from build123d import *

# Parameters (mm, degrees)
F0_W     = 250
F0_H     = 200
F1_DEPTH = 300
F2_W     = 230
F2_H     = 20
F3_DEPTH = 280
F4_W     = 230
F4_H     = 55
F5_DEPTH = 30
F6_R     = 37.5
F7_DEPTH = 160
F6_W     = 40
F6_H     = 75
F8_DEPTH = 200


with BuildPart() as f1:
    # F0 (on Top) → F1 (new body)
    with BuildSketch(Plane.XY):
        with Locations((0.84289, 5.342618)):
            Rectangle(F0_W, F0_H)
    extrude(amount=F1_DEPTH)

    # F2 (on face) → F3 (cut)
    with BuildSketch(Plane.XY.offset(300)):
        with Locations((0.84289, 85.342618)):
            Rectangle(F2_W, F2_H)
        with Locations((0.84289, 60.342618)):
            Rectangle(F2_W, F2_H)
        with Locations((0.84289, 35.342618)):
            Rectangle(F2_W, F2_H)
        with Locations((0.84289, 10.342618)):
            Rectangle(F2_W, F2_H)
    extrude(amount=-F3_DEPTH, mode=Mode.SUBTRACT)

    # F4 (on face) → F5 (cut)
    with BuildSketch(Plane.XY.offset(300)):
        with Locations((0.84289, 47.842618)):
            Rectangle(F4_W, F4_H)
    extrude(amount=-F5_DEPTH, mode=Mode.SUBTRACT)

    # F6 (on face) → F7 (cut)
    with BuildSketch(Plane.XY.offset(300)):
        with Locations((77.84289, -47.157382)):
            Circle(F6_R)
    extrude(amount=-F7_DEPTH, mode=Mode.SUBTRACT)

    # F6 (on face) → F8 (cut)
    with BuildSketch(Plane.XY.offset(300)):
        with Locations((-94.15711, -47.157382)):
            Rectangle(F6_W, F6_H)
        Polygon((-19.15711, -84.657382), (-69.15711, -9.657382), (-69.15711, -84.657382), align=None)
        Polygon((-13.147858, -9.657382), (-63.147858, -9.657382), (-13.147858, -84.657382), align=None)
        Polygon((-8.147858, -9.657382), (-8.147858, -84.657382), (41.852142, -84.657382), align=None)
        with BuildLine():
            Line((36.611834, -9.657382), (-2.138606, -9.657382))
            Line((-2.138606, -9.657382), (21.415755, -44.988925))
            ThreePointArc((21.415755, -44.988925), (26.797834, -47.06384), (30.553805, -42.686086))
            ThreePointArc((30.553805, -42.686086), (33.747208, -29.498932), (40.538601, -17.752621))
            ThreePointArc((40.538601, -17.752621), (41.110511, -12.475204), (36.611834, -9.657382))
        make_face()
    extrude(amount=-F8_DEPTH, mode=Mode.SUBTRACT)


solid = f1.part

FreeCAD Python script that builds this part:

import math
import FreeCAD as App
import Part
import Sketcher
from FreeCAD import Vector
Q = App.Units.Quantity

doc = App.newDocument("Part")
body = doc.addObject("PartDesign::Body", "Body")

# Sketch on XY plane
sketch1 = body.newObject("Sketcher::SketchObject", "Sketch")
sketch1.AttachmentSupport = (doc.getObject("XY_Plane"), [""])
sketch1.MapMode = "FlatFace"
sketch1.addGeometry(Part.LineSegment(Vector(-124, 105, 0), Vector(-124, -95, 0)), False)
sketch1.addGeometry(Part.LineSegment(Vector(-124, -95, 0), Vector(126, -95, 0)), False)
sketch1.addGeometry(Part.LineSegment(Vector(126, -95, 0), Vector(126, 105, 0)), False)
sketch1.addGeometry(Part.LineSegment(Vector(126, 105, 0), Vector(-124, 105, 0)), False)
sketch1.addConstraint(Sketcher.Constraint("Coincident", 0, 2, 1, 1))
sketch1.addConstraint(Sketcher.Constraint("Coincident", 1, 2, 2, 1))
sketch1.addConstraint(Sketcher.Constraint("Coincident", 2, 2, 3, 1))
sketch1.addConstraint(Sketcher.Constraint("Coincident", 3, 2, 0, 1))
sketch1.addConstraint(Sketcher.Constraint("Vertical", 0))
sketch1.addConstraint(Sketcher.Constraint("Horizontal", 1))
sketch1.addConstraint(Sketcher.Constraint("Vertical", 2))
sketch1.addConstraint(Sketcher.Constraint("Horizontal", 3))
sketch1.addConstraint(Sketcher.Constraint("DistanceX", 1, 1, 1, 2, Q("250 mm")))
sketch1.addConstraint(Sketcher.Constraint("DistanceY", 0, 2, 0, 1, Q("200 mm")))
sketch1.addConstraint(Sketcher.Constraint("DistanceX", 0, 2, -1, 1, Q("124.15711 mm")))
sketch1.addConstraint(Sketcher.Constraint("DistanceY", 0, 2, -1, 1, Q("94.657382 mm")))
pad1 = body.newObject("PartDesign::Pad", "Pad")
pad1.Profile = sketch1
pad1.Length = 300

# Sketch on XY plane
sketch2 = body.newObject("Sketcher::SketchObject", "Sketch001")
sketch2.AttachmentSupport = (doc.getObject("XY_Plane"), [""])
sketch2.MapMode = "FlatFace"
sketch2.AttachmentOffset = App.Placement(Vector(0, 0, 300), App.Rotation())
sketch2.addGeometry(Part.LineSegment(Vector(-114, 95, 0), Vector(-114, 75, 0)), False)
sketch2.addGeometry(Part.LineSegment(Vector(-114, 75, 0), Vector(116, 75, 0)), False)
sketch2.addGeometry(Part.LineSegment(Vector(116, 75, 0), Vector(116, 95, 0)), False)
sketch2.addGeometry(Part.LineSegment(Vector(116, 95, 0), Vector(-114, 95, 0)), False)
sketch2.addGeometry(Part.LineSegment(Vector(-114, 70, 0), Vector(-114, 50, 0)), False)
sketch2.addGeometry(Part.LineSegment(Vector(-114, 50, 0), Vector(116, 50, 0)), False)
sketch2.addGeometry(Part.LineSegment(Vector(116, 50, 0), Vector(116, 70, 0)), False)
sketch2.addGeometry(Part.LineSegment(Vector(116, 70, 0), Vector(-114, 70, 0)), False)
sketch2.addGeometry(Part.LineSegment(Vector(-114, 45, 0), Vector(-114, 25, 0)), False)
sketch2.addGeometry(Part.LineSegment(Vector(-114, 25, 0), Vector(116, 25, 0)), False)
sketch2.addGeometry(Part.LineSegment(Vector(116, 25, 0), Vector(116, 45, 0)), False)
sketch2.addGeometry(Part.LineSegment(Vector(116, 45, 0), Vector(-114, 45, 0)), False)
sketch2.addGeometry(Part.LineSegment(Vector(-114, 20, 0), Vector(-114, 0, 0)), False)
sketch2.addGeometry(Part.LineSegment(Vector(-114, 0, 0), Vector(116, 0, 0)), False)
sketch2.addGeometry(Part.LineSegment(Vector(116, 0, 0), Vector(116, 20, 0)), False)
sketch2.addGeometry(Part.LineSegment(Vector(116, 20, 0), Vector(-114, 20, 0)), False)
sketch2.addConstraint(Sketcher.Constraint("Coincident", 0, 2, 1, 1))
sketch2.addConstraint(Sketcher.Constraint("Coincident", 1, 2, 2, 1))
sketch2.addConstraint(Sketcher.Constraint("Coincident", 2, 2, 3, 1))
sketch2.addConstraint(Sketcher.Constraint("Coincident", 3, 2, 0, 1))
sketch2.addConstraint(Sketcher.Constraint("Coincident", 4, 2, 5, 1))
sketch2.addConstraint(Sketcher.Constraint("Coincident", 5, 2, 6, 1))
sketch2.addConstraint(Sketcher.Constraint("Coincident", 6, 2, 7, 1))
sketch2.addConstraint(Sketcher.Constraint("Coincident", 7, 2, 4, 1))
sketch2.addConstraint(Sketcher.Constraint("Coincident", 8, 2, 9, 1))
sketch2.addConstraint(Sketcher.Constraint("Coincident", 9, 2, 10, 1))
sketch2.addConstraint(Sketcher.Constraint("Coincident", 10, 2, 11, 1))
sketch2.addConstraint(Sketcher.Constraint("Coincident", 11, 2, 8, 1))
sketch2.addConstraint(Sketcher.Constraint("Coincident", 12, 2, 13, 1))
sketch2.addConstraint(Sketcher.Constraint("Coincident", 13, 2, 14, 1))
sketch2.addConstraint(Sketcher.Constraint("Coincident", 14, 2, 15, 1))
sketch2.addConstraint(Sketcher.Constraint("Coincident", 15, 2, 12, 1))
sketch2.addConstraint(Sketcher.Constraint("Vertical", 0))
sketch2.addConstraint(Sketcher.Constraint("Horizontal", 1))
sketch2.addConstraint(Sketcher.Constraint("Vertical", 2))
sketch2.addConstraint(Sketcher.Constraint("Horizontal", 3))
sketch2.addConstraint(Sketcher.Constraint("Vertical", 4))
sketch2.addConstraint(Sketcher.Constraint("Horizontal", 5))
sketch2.addConstraint(Sketcher.Constraint("Vertical", 6))
sketch2.addConstraint(Sketcher.Constraint("Horizontal", 7))
sketch2.addConstraint(Sketcher.Constraint("Vertical", 8))
sketch2.addConstraint(Sketcher.Constraint("Horizontal", 9))
sketch2.addConstraint(Sketcher.Constraint("Vertical", 10))
sketch2.addConstraint(Sketcher.Constraint("Horizontal", 11))
sketch2.addConstraint(Sketcher.Constraint("Vertical", 12))
sketch2.addConstraint(Sketcher.Constraint("Horizontal", 13))
sketch2.addConstraint(Sketcher.Constraint("Vertical", 14))
sketch2.addConstraint(Sketcher.Constraint("Horizontal", 15))
sketch2.addConstraint(Sketcher.Constraint("Vertical", 3, 2, 4, 2))
sketch2.addConstraint(Sketcher.Constraint("Vertical", 2, 2, 5, 2))
sketch2.addConstraint(Sketcher.Constraint("Vertical", 7, 2, 8, 2))
sketch2.addConstraint(Sketcher.Constraint("Vertical", 6, 2, 9, 2))
sketch2.addConstraint(Sketcher.Constraint("Vertical", 11, 2, 12, 2))
sketch2.addConstraint(Sketcher.Constraint("Vertical", 10, 2, 13, 2))
sketch2.addConstraint(Sketcher.Constraint("Equal", 2, 4))
sketch2.addConstraint(Sketcher.Constraint("Equal", 6, 8))
sketch2.addConstraint(Sketcher.Constraint("Equal", 10, 12))
sketch2.addConstraint(Sketcher.Constraint("DistanceX", 1, 1, 1, 2, Q("230 mm")))
sketch2.addConstraint(Sketcher.Constraint("DistanceY", 0, 2, 0, 1, Q("20 mm")))
sketch2.addConstraint(Sketcher.Constraint("DistanceY", 4, 2, 0, 2, Q("25 mm")))
sketch2.addConstraint(Sketcher.Constraint("DistanceY", 8, 2, 4, 2, Q("25 mm")))
sketch2.addConstraint(Sketcher.Constraint("DistanceY", 12, 2, 8, 2, Q("25 mm")))
sketch2.addConstraint(Sketcher.Constraint("DistanceX", 0, 2, -1, 1, Q("114.15711 mm")))
sketch2.addConstraint(Sketcher.Constraint("DistanceY", -1, 1, 0, 2, Q("75.342618 mm")))
pocket1 = body.newObject("PartDesign::Pocket", "Pocket")
pocket1.Profile = sketch2
pocket1.Length = 280

# Sketch on XY plane
sketch3 = body.newObject("Sketcher::SketchObject", "Sketch002")
sketch3.AttachmentSupport = (doc.getObject("XY_Plane"), [""])
sketch3.MapMode = "FlatFace"
sketch3.AttachmentOffset = App.Placement(Vector(0, 0, 300), App.Rotation())
sketch3.addGeometry(Part.LineSegment(Vector(-114, 75, 0), Vector(-114, 20, 0)), False)
sketch3.addGeometry(Part.LineSegment(Vector(-114, 20, 0), Vector(116, 20, 0)), False)
sketch3.addGeometry(Part.LineSegment(Vector(116, 20, 0), Vector(116, 75, 0)), False)
sketch3.addGeometry(Part.LineSegment(Vector(116, 75, 0), Vector(-114, 75, 0)), False)
sketch3.addConstraint(Sketcher.Constraint("Coincident", 0, 2, 1, 1))
sketch3.addConstraint(Sketcher.Constraint("Coincident", 1, 2, 2, 1))
sketch3.addConstraint(Sketcher.Constraint("Coincident", 2, 2, 3, 1))
sketch3.addConstraint(Sketcher.Constraint("Coincident", 3, 2, 0, 1))
sketch3.addConstraint(Sketcher.Constraint("Vertical", 0))
sketch3.addConstraint(Sketcher.Constraint("Horizontal", 1))
sketch3.addConstraint(Sketcher.Constraint("Vertical", 2))
sketch3.addConstraint(Sketcher.Constraint("Horizontal", 3))
sketch3.addConstraint(Sketcher.Constraint("DistanceX", 1, 1, 1, 2, Q("230 mm")))
sketch3.addConstraint(Sketcher.Constraint("DistanceY", 0, 2, 0, 1, Q("55 mm")))
sketch3.addConstraint(Sketcher.Constraint("DistanceX", 0, 2, -1, 1, Q("114.15711 mm")))
sketch3.addConstraint(Sketcher.Constraint("DistanceY", -1, 1, 0, 2, Q("20.342618 mm")))
pocket2 = body.newObject("PartDesign::Pocket", "Pocket001")
pocket2.Profile = sketch3
pocket2.Length = 30

# Sketch on XY plane
sketch4 = body.newObject("Sketcher::SketchObject", "Sketch003")
sketch4.AttachmentSupport = (doc.getObject("XY_Plane"), [""])
sketch4.MapMode = "FlatFace"
sketch4.AttachmentOffset = App.Placement(Vector(0, 0, 300), App.Rotation())
sketch4.addGeometry(Part.Circle(Vector(78, -47, 0), Vector(0, 0, 1), 38), False)
sketch4.addConstraint(Sketcher.Constraint("Diameter", 0, Q("75 mm")))
sketch4.addConstraint(Sketcher.Constraint("DistanceX", -1, 1, 0, 3, Q("77.84289 mm")))
sketch4.addConstraint(Sketcher.Constraint("DistanceY", 0, 3, -1, 1, Q("47.157382 mm")))
pocket3 = body.newObject("PartDesign::Pocket", "Pocket002")
pocket3.Profile = sketch4
pocket3.Length = 160

# Sketch on XY plane
sketch5 = body.newObject("Sketcher::SketchObject", "Sketch004")
sketch5.AttachmentSupport = (doc.getObject("XY_Plane"), [""])
sketch5.MapMode = "FlatFace"
sketch5.AttachmentOffset = App.Placement(Vector(0, 0, 300), App.Rotation())
sketch5.addGeometry(Part.LineSegment(Vector(-114, -10, 0), Vector(-114, -85, 0)), False)
sketch5.addGeometry(Part.LineSegment(Vector(-114, -85, 0), Vector(-74, -85, 0)), False)
sketch5.addGeometry(Part.LineSegment(Vector(-74, -85, 0), Vector(-74, -10, 0)), False)
sketch5.addGeometry(Part.LineSegment(Vector(-74, -10, 0), Vector(-114, -10, 0)), False)
sketch5.addGeometry(Part.LineSegment(Vector(-19, -85, 0), Vector(-69, -10, 0)), False)
sketch5.addGeometry(Part.LineSegment(Vector(-69, -10, 0), Vector(-69, -85, 0)), False)
sketch5.addGeometry(Part.LineSegment(Vector(-69, -85, 0), Vector(-19, -85, 0)), False)
sketch5.addGeometry(Part.LineSegment(Vector(-13, -10, 0), Vector(-63, -10, 0)), False)
sketch5.addGeometry(Part.LineSegment(Vector(-63, -10, 0), Vector(-13, -85, 0)), False)
sketch5.addGeometry(Part.LineSegment(Vector(-13, -85, 0), Vector(-13, -10, 0)), False)
sketch5.addGeometry(Part.LineSegment(Vector(-8, -10, 0), Vector(-8, -85, 0)), False)
sketch5.addGeometry(Part.LineSegment(Vector(-8, -85, 0), Vector(42, -85, 0)), False)
sketch5.addGeometry(Part.LineSegment(Vector(42, -85, 0), Vector(-8, -10, 0)), False)
sketch5.addGeometry(Part.LineSegment(Vector(37, -10, 0), Vector(-2, -10, 0)), False)
sketch5.addGeometry(Part.LineSegment(Vector(-2, -10, 0), Vector(21, -45, 0)), False)
sketch5.addGeometry(Part.ArcOfCircle(Part.Circle(Vector(26, -42, 0), Vector(0, 0, 1), 5), math.radians(-146), math.radians(-5)), False)
sketch5.addGeometry(Part.ArcOfCircle(Part.Circle(Vector(78, -47, 0), Vector(0, 0, 1), 47), math.radians(142), math.radians(175)), False)
sketch5.addGeometry(Part.ArcOfCircle(Part.Circle(Vector(37, -15, 0), Vector(0, 0, 1), 5), math.radians(-38), math.radians(90)), False)
sketch5.addConstraint(Sketcher.Constraint("Coincident", 0, 2, 1, 1))
sketch5.addConstraint(Sketcher.Constraint("Coincident", 1, 2, 2, 1))
sketch5.addConstraint(Sketcher.Constraint("Coincident", 2, 2, 3, 1))
sketch5.addConstraint(Sketcher.Constraint("Coincident", 3, 2, 0, 1))
sketch5.addConstraint(Sketcher.Constraint("Coincident", 4, 2, 5, 1))
sketch5.addConstraint(Sketcher.Constraint("Coincident", 5, 2, 6, 1))
sketch5.addConstraint(Sketcher.Constraint("Coincident", 6, 2, 4, 1))
sketch5.addConstraint(Sketcher.Constraint("Coincident", 7, 2, 8, 1))
sketch5.addConstraint(Sketcher.Constraint("Coincident", 8, 2, 9, 1))
sketch5.addConstraint(Sketcher.Constraint("Coincident", 9, 2, 7, 1))
sketch5.addConstraint(Sketcher.Constraint("Coincident", 10, 2, 11, 1))
sketch5.addConstraint(Sketcher.Constraint("Coincident", 11, 2, 12, 1))
sketch5.addConstraint(Sketcher.Constraint("Coincident", 12, 2, 10, 1))
sketch5.addConstraint(Sketcher.Constraint("Coincident", 13, 2, 14, 1))
sketch5.addConstraint(Sketcher.Constraint("Tangent", 14, 2, 15, 1))
sketch5.addConstraint(Sketcher.Constraint("Tangent", 15, 2, 16, 2))
sketch5.addConstraint(Sketcher.Constraint("Tangent", 16, 1, 17, 1))
sketch5.addConstraint(Sketcher.Constraint("Tangent", 17, 2, 13, 1))
sketch5.addConstraint(Sketcher.Constraint("Vertical", 0))
sketch5.addConstraint(Sketcher.Constraint("Horizontal", 1))
sketch5.addConstraint(Sketcher.Constraint("Vertical", 2))
sketch5.addConstraint(Sketcher.Constraint("Horizontal", 3))
sketch5.addConstraint(Sketcher.Constraint("Vertical", 5))
sketch5.addConstraint(Sketcher.Constraint("Horizontal", 6))
sketch5.addConstraint(Sketcher.Constraint("Horizontal", 7))
sketch5.addConstraint(Sketcher.Constraint("Vertical", 9))
sketch5.addConstraint(Sketcher.Constraint("Vertical", 10))
sketch5.addConstraint(Sketcher.Constraint("Horizontal", 11))
sketch5.addConstraint(Sketcher.Constraint("Horizontal", 13))
sketch5.addConstraint(Sketcher.Constraint("Equal", 15, 17))
sketch5.addConstraint(Sketcher.Constraint("Parallel", 4, 8))
sketch5.addConstraint(Sketcher.Constraint("Parallel", 8, 12))
sketch5.addConstraint(Sketcher.Constraint("Parallel", 12, 14))
sketch5.addConstraint(Sketcher.Constraint("Horizontal", 3, 2, 4, 2))
sketch5.addConstraint(Sketcher.Constraint("Horizontal", 1, 2, 5, 2))
sketch5.addConstraint(Sketcher.Constraint("Horizontal", 4, 2, 7, 2))
sketch5.addConstraint(Sketcher.Constraint("Horizontal", 6, 2, 8, 2))
sketch5.addConstraint(Sketcher.Constraint("Horizontal", 8, 2, 10, 2))
sketch5.addConstraint(Sketcher.Constraint("Horizontal", 9, 2, 12, 2))
sketch5.addConstraint(Sketcher.Constraint("Horizontal", 12, 2, 13, 2))
sketch5.addConstraint(Sketcher.Constraint("Radius", 15, Q("5 mm")))
sketch5.addConstraint(Sketcher.Constraint("DistanceX", 1, 1, 1, 2, Q("40 mm")))
sketch5.addConstraint(Sketcher.Constraint("DistanceX", 6, 1, 6, 2, Q("50 mm")))
sketch5.addConstraint(Sketcher.Constraint("DistanceY", 0, 2, 0, 1, Q("75 mm")))
sketch5.addConstraint(Sketcher.Constraint("DistanceX", 2, 2, 4, 2, Q("5 mm")))
sketch5.addConstraint(Sketcher.Constraint("DistanceX", 8, 2, 10, 2, Q("5 mm")))
sketch5.addConstraint(Sketcher.Constraint("DistanceY", 16, 3, 17, 3, Q("32.499998 mm")))
sketch5.addConstraint(Sketcher.Constraint("Radius", 16, Q("47.499993 mm")))
sketch5.addConstraint(Sketcher.Constraint("DistanceX", 13, 2, 13, 1, Q("38.75044 mm")))
sketch5.addConstraint(Sketcher.Constraint("DistanceX", -1, 1, 16, 1, Q("40.538601 mm")))
sketch5.addConstraint(Sketcher.Constraint("DistanceY", 16, 3, -1, 1, Q("47.157381 mm")))
sketch5.addConstraint(Sketcher.Constraint("DistanceX", 0, 2, -1, 1, Q("114.15711 mm")))
sketch5.addConstraint(Sketcher.Constraint("DistanceX", 8, 2, 17, 3, Q("49.759691 mm")))
pocket4 = body.newObject("PartDesign::Pocket", "Pocket003")
pocket4.Profile = sketch5
pocket4.Length = 200

doc.recompute()
